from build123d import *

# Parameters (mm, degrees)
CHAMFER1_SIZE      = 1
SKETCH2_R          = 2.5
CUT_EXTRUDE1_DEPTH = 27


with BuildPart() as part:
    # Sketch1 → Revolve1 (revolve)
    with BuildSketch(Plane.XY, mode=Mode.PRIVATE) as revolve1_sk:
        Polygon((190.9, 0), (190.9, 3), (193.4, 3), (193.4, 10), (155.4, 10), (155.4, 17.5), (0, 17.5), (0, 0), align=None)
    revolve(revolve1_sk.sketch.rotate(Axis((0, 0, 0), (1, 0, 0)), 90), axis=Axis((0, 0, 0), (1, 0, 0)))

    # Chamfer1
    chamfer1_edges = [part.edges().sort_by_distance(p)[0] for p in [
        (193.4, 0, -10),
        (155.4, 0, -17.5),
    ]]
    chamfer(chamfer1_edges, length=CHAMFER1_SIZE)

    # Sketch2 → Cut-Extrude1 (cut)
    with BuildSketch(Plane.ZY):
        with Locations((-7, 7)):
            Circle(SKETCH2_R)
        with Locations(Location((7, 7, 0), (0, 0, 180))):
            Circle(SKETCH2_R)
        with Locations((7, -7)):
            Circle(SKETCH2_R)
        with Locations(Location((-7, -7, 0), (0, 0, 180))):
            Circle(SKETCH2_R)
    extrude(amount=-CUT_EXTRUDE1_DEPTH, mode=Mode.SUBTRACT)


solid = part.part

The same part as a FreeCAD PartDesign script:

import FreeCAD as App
import Part
import Sketcher

V = App.Vector
Q = App.Units.Quantity


def edges_at(feature, points):
    """Names of the edges that pass closest to the given points."""
    edges = feature.Shape.Edges
    near = lambda p: min(range(len(edges)), key=lambda i: edges[i].distToShape(Part.Vertex(*p))[0])
    return sorted({f"Edge{near(p) + 1}" for p in points})

doc = App.newDocument("Part")
body = doc.addObject("PartDesign::Body", "Body")

sketch1 = body.newObject("Sketcher::SketchObject", "Sketch")
sketch1.AttachmentSupport = (doc.getObject("XY_Plane"), [""])
sketch1.MapMode = "FlatFace"
sketch1.addGeometry([
    Part.LineSegment(V(190.9, 0, 0), V(190.9, 3, 0)),
    Part.LineSegment(V(190.9, 3, 0), V(193.4, 3, 0)),
    Part.LineSegment(V(193.4, 3, 0), V(193.4, 10, 0)),
    Part.LineSegment(V(193.4, 10, 0), V(155.4, 10, 0)),
    Part.LineSegment(V(155.4, 10, 0), V(155.4, 17.5, 0)),
    Part.LineSegment(V(155.4, 17.5, 0), V(0, 17.5, 0)),
    Part.LineSegment(V(0, 17.5, 0), V(0, 0, 0)),
    Part.LineSegment(V(0, 0, 0), V(190.9, 0, 0)),
], False)
sketch1.addConstraint([
    Sketcher.Constraint("Coincident", 0, 2, 1, 1),
    Sketcher.Constraint("Coincident", 1, 2, 2, 1),
    Sketcher.Constraint("Coincident", 2, 2, 3, 1),
    Sketcher.Constraint("Coincident", 3, 2, 4, 1),
    Sketcher.Constraint("Coincident", 4, 2, 5, 1),
    Sketcher.Constraint("Coincident", 5, 2, 6, 1),
    Sketcher.Constraint("Coincident", 6, 2, 7, 1),
    Sketcher.Constraint("Coincident", 7, 2, 0, 1),
    Sketcher.Constraint("Vertical", 0),
    Sketcher.Constraint("Horizontal", 1),
    Sketcher.Constraint("Vertical", 2),
    Sketcher.Constraint("Horizontal", 3),
    Sketcher.Constraint("Vertical", 4),
    Sketcher.Constraint("Horizontal", 5),
    Sketcher.Constraint("Vertical", 6),
    Sketcher.Constraint("Horizontal", 7),
    Sketcher.Constraint("Coincident", 6, 2, -1, 1),
    Sketcher.Constraint("DistanceX", 3, 2, 3, 1, Q("38 mm")),
    Sketcher.Constraint("DistanceY", 0, 1, 0, 2, Q("3 mm")),
    Sketcher.Constraint("DistanceY", 2, 1, 2, 2, Q("7 mm")),
    Sketcher.Constraint("DistanceX", 1, 1, 1, 2, Q("2.5 mm")),
    Sketcher.Constraint("DistanceX", 5, 2, 5, 1, Q("155.4 mm")),
    Sketcher.Constraint("DistanceY", 4, 1, 4, 2, Q("7.5 mm")),
])
revolution = body.newObject("PartDesign::Revolution", "Revolution")
revolution.Profile = sketch1
revolution.ReferenceAxis = (sketch1, ["H_Axis"])
revolution.Angle = 360
doc.recompute()

chamfer = body.newObject("PartDesign::Chamfer", "Chamfer")
chamfer.Base = (revolution, edges_at(revolution, [(193.4, 0, -10), (155.4, 0, -17.5)]))
chamfer.Size = 1

sketch2 = body.newObject("Sketcher::SketchObject", "Sketch001")
sketch2.AttachmentSupport = (doc.getObject("YZ_Plane"), [""])
sketch2.MapMode = "FlatFace"
sketch2.addGeometry([
    Part.Circle(V(7, -7, 0), V(0, 0, 1), 2.5),
    Part.Circle(V(7, 7, 0), V(0, 0, 1), 2.5),
    Part.Circle(V(-7, 7, 0), V(0, 0, 1), 2.5),
    Part.Circle(V(-7, -7, 0), V(0, 0, 1), 2.5),
], False)
sketch2.addConstraint([
    Sketcher.Constraint("Equal", 0, 1),
    Sketcher.Constraint("Equal", 1, 2),
    Sketcher.Constraint("Equal", 2, 3),
    Sketcher.Constraint("Symmetric", 0, 3, 2, 3, -1, 1),
    Sketcher.Constraint("Symmetric", 1, 3, 3, 3, -1, 1),
    Sketcher.Constraint("Symmetric", 1, 3, 2, 3, -2),
    Sketcher.Constraint("Diameter", 0, Q("5 mm")),
    Sketcher.Constraint("DistanceX", -1, 1, 0, 3, Q("7 mm")),
    Sketcher.Constraint("DistanceY", 0, 3, -1, 1, Q("7 mm")),
])
pocket1 = body.newObject("PartDesign::Pocket", "Pocket")
pocket1.Profile = sketch2
pocket1.Length = 27
pocket1.Reversed = True

doc.recompute()
